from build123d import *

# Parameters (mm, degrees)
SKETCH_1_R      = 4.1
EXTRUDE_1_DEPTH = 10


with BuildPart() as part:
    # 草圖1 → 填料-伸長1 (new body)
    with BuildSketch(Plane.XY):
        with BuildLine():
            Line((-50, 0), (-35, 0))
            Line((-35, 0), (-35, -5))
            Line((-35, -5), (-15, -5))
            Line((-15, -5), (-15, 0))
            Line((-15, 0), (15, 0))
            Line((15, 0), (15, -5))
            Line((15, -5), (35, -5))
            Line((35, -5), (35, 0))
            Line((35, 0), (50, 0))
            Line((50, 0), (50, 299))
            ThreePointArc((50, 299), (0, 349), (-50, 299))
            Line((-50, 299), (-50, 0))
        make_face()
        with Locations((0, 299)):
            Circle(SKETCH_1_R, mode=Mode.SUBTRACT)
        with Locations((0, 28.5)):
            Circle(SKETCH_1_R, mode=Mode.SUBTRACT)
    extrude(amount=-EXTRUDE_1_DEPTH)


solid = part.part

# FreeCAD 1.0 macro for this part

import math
import FreeCAD as App
import Part
import Sketcher

doc = App.newDocument("Part")
body = doc.addObject("PartDesign::Body", "Body")

# Sketch on XY plane
sketch1 = body.newObject("Sketcher::SketchObject", "Sketch")
sketch1.AttachmentSupport = (doc.getObject("XY_Plane"), [""])
sketch1.MapMode = "FlatFace"
sketch1.addGeometry([
    Part.LineSegment(App.Vector(-50, 0, 0), App.Vector(-35, 0, 0)),  # 0
    Part.LineSegment(App.Vector(-35, 0, 0), App.Vector(-35, -5, 0)),  # 1
    Part.LineSegment(App.Vector(-35, -5, 0), App.Vector(-15, -5, 0)),  # 2
    Part.LineSegment(App.Vector(-15, -5, 0), App.Vector(-15, 0, 0)),  # 3
    Part.LineSegment(App.Vector(-15, 0, 0), App.Vector(15, 0, 0)),  # 4
    Part.LineSegment(App.Vector(15, 0, 0), App.Vector(15, -5, 0)),  # 5
    Part.LineSegment(App.Vector(15, -5, 0), App.Vector(35, -5, 0)),  # 6
    Part.LineSegment(App.Vector(35, -5, 0), App.Vector(35, 0, 0)),  # 7
    Part.LineSegment(App.Vector(35, 0, 0), App.Vector(50, 0, 0)),  # 8
    Part.LineSegment(App.Vector(50, 0, 0), App.Vector(50, 299, 0)),  # 9
    Part.ArcOfCircle(Part.Circle(App.Vector(0, 299, 0), App.Vector(0, 0, 1), 50), math.radians(0), math.radians(180)),  # 10
    Part.LineSegment(App.Vector(-50, 299, 0), App.Vector(-50, 0, 0)),  # 11
    Part.Circle(App.Vector(0, 28.5, 0), App.Vector(0, 0, 1), 4.1),  # 12
    Part.Circle(App.Vector(0, 299, 0), App.Vector(0, 0, 1), 4.1),  # 13
], False)
sketch1.addConstraint([
    Sketcher.Constraint("Coincident", 0, 2, 1, 1),
    Sketcher.Constraint("Coincident", 1, 2, 2, 1),
    Sketcher.Constraint("Coincident", 2, 2, 3, 1),
    Sketcher.Constraint("Coincident", 3, 2, 4, 1),
    Sketcher.Constraint("Coincident", 4, 2, 5, 1),
    Sketcher.Constraint("Coincident", 5, 2, 6, 1),
    Sketcher.Constraint("Coincident", 6, 2, 7, 1),
    Sketcher.Constraint("Coincident", 7, 2, 8, 1),
    Sketcher.Constraint("Coincident", 8, 2, 9, 1),
    Sketcher.Constraint("Tangent", 9, 2, 10, 1),
    Sketcher.Constraint("Tangent", 10, 2, 11, 1),
    Sketcher.Constraint("Coincident", 11, 2, 0, 1),
    Sketcher.Constraint("Horizontal", 0),
    Sketcher.Constraint("Vertical", 1),
    Sketcher.Constraint("Horizontal", 2),
    Sketcher.Constraint("Vertical", 3),
    Sketcher.Constraint("Horizontal", 4),
    Sketcher.Constraint("Vertical", 5),
    Sketcher.Constraint("Horizontal", 6),
    Sketcher.Constraint("Vertical", 7),
    Sketcher.Constraint("Horizontal", 8),
    Sketcher.Constraint("Vertical", 9),
    Sketcher.Constraint("Vertical", 11),
    Sketcher.Constraint("Coincident", 13, 3, 10, 3),
    Sketcher.Constraint("Equal", 12, 13),
    Sketcher.Constraint("Symmetric", 3, 2, 4, 2, -1, 1),
    Sketcher.Constraint("Symmetric", 0, 2, 7, 2, -1, 1),
    Sketcher.Constraint("Symmetric", 8, 2, 11, 2, -2),
    Sketcher.Constraint("PointOnObject", 12, 3, -2),
    Sketcher.Constraint("Horizontal", 2, 2, 5, 2),
    Sketcher.Constraint("Radius", 10, 50.0),
    Sketcher.Constraint("Diameter", 12, 8.2),
    Sketcher.Constraint("DistanceX", 0, 1, 0, 2, 15.0),
    Sketcher.Constraint("DistanceX", 2, 1, 2, 2, 20.0),
    Sketcher.Constraint("DistanceY", 1, 2, 1, 1, 5.0),
    Sketcher.Constraint("DistanceY", 9, 1, 9, 2, 299.0),
    Sketcher.Constraint("DistanceY", -1, 1, 12, 3, 28.5),
])
pad1 = body.newObject("PartDesign::Pad", "Pad")
pad1.Profile = sketch1
pad1.Length = 10
pad1.Reversed = True

doc.recompute()
